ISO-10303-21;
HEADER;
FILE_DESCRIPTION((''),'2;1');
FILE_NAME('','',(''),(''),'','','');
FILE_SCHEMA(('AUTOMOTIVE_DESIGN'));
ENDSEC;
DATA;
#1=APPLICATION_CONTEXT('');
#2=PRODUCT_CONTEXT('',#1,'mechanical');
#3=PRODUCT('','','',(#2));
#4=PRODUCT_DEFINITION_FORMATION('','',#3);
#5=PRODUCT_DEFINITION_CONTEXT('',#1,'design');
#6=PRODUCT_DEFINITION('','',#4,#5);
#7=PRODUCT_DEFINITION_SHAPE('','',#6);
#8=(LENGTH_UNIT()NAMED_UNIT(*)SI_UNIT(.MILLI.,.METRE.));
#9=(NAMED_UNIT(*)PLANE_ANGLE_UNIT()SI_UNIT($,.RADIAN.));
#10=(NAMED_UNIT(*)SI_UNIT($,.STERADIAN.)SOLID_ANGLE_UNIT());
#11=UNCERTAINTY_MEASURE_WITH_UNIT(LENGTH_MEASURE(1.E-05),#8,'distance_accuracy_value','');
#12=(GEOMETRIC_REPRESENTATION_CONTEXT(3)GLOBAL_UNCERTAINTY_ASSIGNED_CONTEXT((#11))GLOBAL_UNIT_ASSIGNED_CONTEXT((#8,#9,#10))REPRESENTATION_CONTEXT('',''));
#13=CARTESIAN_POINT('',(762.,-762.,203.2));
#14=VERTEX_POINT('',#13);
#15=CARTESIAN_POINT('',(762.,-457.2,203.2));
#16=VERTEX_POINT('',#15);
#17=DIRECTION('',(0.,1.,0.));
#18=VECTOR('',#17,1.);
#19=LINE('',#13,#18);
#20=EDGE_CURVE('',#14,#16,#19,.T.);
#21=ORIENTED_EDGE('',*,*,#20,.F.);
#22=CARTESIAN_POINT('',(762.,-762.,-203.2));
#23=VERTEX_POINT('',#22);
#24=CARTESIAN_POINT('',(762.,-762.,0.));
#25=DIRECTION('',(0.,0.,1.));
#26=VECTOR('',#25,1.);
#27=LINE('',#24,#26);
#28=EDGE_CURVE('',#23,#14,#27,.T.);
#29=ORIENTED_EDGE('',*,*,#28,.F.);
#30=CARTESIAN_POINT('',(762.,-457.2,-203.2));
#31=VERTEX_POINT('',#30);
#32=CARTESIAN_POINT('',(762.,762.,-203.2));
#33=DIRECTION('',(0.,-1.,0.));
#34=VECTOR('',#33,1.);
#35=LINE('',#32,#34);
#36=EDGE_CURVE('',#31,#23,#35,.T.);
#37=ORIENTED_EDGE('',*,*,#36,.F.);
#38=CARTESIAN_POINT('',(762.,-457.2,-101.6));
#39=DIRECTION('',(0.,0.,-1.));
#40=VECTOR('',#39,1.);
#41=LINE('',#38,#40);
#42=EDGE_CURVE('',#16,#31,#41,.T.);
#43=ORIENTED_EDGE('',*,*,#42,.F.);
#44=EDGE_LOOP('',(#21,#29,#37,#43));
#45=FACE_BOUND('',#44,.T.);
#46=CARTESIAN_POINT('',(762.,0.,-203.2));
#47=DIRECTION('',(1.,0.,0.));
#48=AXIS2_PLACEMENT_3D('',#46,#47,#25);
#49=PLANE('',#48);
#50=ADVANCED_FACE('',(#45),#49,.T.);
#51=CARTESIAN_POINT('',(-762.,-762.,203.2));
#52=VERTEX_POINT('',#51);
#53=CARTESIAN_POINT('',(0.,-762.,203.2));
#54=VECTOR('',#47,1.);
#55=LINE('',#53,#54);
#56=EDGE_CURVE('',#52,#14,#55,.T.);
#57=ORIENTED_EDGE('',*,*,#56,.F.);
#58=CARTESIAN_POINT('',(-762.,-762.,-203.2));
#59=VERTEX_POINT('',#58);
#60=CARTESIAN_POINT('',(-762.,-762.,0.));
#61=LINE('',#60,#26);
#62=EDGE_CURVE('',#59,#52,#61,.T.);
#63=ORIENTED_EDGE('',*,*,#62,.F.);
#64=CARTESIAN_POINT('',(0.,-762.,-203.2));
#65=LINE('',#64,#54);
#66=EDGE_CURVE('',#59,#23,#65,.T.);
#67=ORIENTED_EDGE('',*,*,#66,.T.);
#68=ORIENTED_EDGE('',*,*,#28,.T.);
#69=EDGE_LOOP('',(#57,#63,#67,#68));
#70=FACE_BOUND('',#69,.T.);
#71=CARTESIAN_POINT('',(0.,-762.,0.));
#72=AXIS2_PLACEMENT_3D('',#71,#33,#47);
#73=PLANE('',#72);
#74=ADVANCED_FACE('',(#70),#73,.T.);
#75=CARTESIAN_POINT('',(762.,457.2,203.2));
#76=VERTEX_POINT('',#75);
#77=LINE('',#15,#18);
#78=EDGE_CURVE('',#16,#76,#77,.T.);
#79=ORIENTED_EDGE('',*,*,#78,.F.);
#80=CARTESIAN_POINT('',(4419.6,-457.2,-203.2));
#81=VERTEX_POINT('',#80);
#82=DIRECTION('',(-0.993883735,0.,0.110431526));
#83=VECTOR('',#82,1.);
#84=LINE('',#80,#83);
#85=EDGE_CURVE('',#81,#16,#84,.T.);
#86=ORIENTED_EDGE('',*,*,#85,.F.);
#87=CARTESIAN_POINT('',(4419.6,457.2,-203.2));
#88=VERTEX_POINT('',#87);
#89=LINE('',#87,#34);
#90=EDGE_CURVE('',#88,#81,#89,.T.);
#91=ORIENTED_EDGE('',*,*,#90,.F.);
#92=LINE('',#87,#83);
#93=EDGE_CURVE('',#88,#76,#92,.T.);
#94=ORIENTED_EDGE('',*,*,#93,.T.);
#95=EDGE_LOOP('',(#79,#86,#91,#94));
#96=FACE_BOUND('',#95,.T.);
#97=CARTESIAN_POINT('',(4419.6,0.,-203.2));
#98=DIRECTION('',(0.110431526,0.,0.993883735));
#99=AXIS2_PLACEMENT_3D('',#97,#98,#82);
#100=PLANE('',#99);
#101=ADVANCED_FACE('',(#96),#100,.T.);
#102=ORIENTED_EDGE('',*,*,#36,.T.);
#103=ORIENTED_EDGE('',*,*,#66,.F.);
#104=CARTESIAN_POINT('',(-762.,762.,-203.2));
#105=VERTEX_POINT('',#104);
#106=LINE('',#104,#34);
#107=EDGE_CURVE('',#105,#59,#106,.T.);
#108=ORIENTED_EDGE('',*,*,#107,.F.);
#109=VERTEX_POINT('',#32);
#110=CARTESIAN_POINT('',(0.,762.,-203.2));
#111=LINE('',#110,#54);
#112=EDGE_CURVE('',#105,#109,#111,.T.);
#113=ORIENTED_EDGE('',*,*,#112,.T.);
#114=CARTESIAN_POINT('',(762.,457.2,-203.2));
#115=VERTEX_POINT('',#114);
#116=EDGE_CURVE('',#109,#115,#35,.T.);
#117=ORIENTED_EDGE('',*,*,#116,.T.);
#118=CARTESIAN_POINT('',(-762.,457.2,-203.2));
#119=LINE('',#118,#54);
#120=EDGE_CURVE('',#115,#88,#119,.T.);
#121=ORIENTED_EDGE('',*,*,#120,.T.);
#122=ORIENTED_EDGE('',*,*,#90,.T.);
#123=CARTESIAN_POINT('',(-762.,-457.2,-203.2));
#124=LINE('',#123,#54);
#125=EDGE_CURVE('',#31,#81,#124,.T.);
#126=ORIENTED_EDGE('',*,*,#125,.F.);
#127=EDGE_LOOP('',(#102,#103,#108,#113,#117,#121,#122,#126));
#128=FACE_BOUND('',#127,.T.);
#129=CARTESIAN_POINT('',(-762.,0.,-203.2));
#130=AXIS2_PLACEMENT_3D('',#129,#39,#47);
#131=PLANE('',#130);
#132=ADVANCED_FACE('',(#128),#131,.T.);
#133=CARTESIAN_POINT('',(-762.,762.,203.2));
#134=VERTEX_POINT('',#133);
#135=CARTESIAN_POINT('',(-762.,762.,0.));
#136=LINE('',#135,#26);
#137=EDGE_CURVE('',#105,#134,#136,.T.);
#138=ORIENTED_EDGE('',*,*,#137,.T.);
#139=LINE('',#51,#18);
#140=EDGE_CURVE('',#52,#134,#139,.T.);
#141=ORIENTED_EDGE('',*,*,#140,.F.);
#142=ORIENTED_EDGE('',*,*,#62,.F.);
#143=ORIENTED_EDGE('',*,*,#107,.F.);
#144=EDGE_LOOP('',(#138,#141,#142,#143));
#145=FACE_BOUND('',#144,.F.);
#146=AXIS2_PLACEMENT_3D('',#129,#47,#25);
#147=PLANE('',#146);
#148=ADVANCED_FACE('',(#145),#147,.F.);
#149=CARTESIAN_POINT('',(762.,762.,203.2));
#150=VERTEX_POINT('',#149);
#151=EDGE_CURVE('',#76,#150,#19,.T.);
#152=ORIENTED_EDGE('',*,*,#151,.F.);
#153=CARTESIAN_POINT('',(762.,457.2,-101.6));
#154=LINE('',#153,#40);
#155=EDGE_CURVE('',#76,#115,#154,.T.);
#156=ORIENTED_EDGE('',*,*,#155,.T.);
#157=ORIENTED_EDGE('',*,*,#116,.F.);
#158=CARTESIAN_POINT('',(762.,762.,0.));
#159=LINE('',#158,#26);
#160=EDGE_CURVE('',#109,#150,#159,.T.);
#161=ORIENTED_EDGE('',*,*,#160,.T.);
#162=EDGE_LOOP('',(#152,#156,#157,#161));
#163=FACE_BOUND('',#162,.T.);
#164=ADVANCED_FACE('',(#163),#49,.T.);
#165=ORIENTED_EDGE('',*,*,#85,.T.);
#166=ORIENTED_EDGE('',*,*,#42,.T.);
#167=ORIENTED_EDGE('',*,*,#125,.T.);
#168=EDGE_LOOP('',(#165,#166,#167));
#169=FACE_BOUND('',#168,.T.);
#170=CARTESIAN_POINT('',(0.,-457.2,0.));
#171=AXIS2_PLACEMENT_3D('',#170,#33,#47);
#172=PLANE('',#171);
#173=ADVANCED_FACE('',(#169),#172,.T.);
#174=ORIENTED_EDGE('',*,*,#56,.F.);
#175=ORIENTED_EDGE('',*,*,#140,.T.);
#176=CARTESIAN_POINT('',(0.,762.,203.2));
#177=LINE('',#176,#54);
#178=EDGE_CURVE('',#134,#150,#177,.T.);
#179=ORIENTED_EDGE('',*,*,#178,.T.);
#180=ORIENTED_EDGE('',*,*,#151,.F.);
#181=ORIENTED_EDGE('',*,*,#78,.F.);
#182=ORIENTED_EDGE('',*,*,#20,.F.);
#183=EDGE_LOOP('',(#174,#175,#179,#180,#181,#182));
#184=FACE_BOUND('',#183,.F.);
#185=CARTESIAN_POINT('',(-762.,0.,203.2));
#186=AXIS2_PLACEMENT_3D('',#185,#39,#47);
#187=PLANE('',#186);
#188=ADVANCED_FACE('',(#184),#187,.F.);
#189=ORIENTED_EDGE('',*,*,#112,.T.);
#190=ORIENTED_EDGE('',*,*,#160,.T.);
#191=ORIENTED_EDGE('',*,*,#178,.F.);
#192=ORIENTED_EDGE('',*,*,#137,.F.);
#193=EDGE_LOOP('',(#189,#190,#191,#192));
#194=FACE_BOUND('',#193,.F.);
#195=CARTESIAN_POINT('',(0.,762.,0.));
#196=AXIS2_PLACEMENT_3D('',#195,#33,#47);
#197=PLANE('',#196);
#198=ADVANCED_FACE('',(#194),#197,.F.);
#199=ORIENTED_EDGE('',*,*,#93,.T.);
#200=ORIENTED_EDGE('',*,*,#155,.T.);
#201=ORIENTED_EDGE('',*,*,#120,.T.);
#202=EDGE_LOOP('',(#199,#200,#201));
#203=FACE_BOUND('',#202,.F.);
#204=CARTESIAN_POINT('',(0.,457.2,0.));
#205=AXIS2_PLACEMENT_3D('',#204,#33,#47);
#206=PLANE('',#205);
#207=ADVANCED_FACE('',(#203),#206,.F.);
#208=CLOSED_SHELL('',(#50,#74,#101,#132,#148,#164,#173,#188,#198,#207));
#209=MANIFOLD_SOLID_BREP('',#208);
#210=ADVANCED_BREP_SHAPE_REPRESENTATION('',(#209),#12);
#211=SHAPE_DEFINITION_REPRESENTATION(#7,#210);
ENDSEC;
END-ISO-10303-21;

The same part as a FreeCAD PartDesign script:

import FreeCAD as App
import Part
import Sketcher

V = App.Vector
Q = App.Units.Quantity

doc = App.newDocument("Part")
body = doc.addObject("PartDesign::Body", "Body")

# Sketch on XZ plane
sketch1 = doc.addObject("Sketcher::SketchObject", "Sketch")
body.addObject(sketch1)
sketch1.AttachmentSupport = (doc.XZ_Plane, [""])
sketch1.MapMode = "FlatFace"
sketch1.addGeometry(Part.LineSegment(V(-762, 203.2, 0), V(-762, -203.2, 0)), False)
sketch1.addGeometry(Part.LineSegment(V(-762, -203.2, 0), V(762, -203.2, 0)), False)
sketch1.addGeometry(Part.LineSegment(V(762, -203.2, 0), V(762, 203.2, 0)), False)
sketch1.addGeometry(Part.LineSegment(V(762, 203.2, 0), V(-762, 203.2, 0)), False)
sketch1.addConstraint(Sketcher.Constraint("Coincident", 0, 2, 1, 1))
sketch1.addConstraint(Sketcher.Constraint("Coincident", 1, 2, 2, 1))
sketch1.addConstraint(Sketcher.Constraint("Coincident", 2, 2, 3, 1))
sketch1.addConstraint(Sketcher.Constraint("Coincident", 3, 2, 0, 1))
sketch1.addConstraint(Sketcher.Constraint("Vertical", 0))
sketch1.addConstraint(Sketcher.Constraint("Horizontal", 1))
sketch1.addConstraint(Sketcher.Constraint("Vertical", 2))
sketch1.addConstraint(Sketcher.Constraint("Horizontal", 3))
sketch1.addConstraint(Sketcher.Constraint("Symmetric", 0, 2, 2, 2, -1, 1))
sketch1.addConstraint(Sketcher.Constraint("DistanceX", 1, 1, 1, 2, Q("60 in")))
sketch1.addConstraint(Sketcher.Constraint("DistanceY", 0, 2, 0, 1, Q("16 in")))
pad1 = doc.addObject("PartDesign::Pad", "Pad")
body.addObject(pad1)
pad1.Profile = sketch1
pad1.Length = Q("60 in")
pad1.Midplane = True

# Sketch on XZ plane
sketch2 = doc.addObject("Sketcher::SketchObject", "Sketch001")
body.addObject(sketch2)
sketch2.AttachmentSupport = (doc.XZ_Plane, [""])
sketch2.MapMode = "FlatFace"
sketch2.addGeometry(Part.LineSegment(V(-762, 203.2, 0), V(-762, -203.2, 0)), False)
sketch2.addGeometry(Part.LineSegment(V(-762, -203.2, 0), V(4419.6, -203.2, 0)), False)
sketch2.addGeometry(Part.LineSegment(V(4419.6, -203.2, 0), V(762, 203.2, 0)), False)
sketch2.addGeometry(Part.LineSegment(V(762, 203.2, 0), V(-762, 203.2, 0)), False)
sketch2.addConstraint(Sketcher.Constraint("Coincident", 0, 2, 1, 1))
sketch2.addConstraint(Sketcher.Constraint("Coincident", 1, 2, 2, 1))
sketch2.addConstraint(Sketcher.Constraint("Coincident", 2, 2, 3, 1))
sketch2.addConstraint(Sketcher.Constraint("Coincident", 3, 2, 0, 1))
sketch2.addConstraint(Sketcher.Constraint("Vertical", 0))
sketch2.addConstraint(Sketcher.Constraint("Horizontal", 1))
sketch2.addConstraint(Sketcher.Constraint("Horizontal", 3))
sketch2.addConstraint(Sketcher.Constraint("Symmetric", 0, 2, 2, 2, -1, 1))
sketch2.addConstraint(Sketcher.Constraint("DistanceX", 1, 1, 1, 2, Q("204 in")))
sketch2.addConstraint(Sketcher.Constraint("DistanceX", 3, 2, 3, 1, Q("60 in")))
sketch2.addConstraint(Sketcher.Constraint("DistanceY", 0, 2, 0, 1, Q("16 in")))
pad2 = doc.addObject("PartDesign::Pad", "Pad001")
body.addObject(pad2)
pad2.Profile = sketch2
pad2.Length = Q("36 in")
pad2.Midplane = True

doc.recompute()
